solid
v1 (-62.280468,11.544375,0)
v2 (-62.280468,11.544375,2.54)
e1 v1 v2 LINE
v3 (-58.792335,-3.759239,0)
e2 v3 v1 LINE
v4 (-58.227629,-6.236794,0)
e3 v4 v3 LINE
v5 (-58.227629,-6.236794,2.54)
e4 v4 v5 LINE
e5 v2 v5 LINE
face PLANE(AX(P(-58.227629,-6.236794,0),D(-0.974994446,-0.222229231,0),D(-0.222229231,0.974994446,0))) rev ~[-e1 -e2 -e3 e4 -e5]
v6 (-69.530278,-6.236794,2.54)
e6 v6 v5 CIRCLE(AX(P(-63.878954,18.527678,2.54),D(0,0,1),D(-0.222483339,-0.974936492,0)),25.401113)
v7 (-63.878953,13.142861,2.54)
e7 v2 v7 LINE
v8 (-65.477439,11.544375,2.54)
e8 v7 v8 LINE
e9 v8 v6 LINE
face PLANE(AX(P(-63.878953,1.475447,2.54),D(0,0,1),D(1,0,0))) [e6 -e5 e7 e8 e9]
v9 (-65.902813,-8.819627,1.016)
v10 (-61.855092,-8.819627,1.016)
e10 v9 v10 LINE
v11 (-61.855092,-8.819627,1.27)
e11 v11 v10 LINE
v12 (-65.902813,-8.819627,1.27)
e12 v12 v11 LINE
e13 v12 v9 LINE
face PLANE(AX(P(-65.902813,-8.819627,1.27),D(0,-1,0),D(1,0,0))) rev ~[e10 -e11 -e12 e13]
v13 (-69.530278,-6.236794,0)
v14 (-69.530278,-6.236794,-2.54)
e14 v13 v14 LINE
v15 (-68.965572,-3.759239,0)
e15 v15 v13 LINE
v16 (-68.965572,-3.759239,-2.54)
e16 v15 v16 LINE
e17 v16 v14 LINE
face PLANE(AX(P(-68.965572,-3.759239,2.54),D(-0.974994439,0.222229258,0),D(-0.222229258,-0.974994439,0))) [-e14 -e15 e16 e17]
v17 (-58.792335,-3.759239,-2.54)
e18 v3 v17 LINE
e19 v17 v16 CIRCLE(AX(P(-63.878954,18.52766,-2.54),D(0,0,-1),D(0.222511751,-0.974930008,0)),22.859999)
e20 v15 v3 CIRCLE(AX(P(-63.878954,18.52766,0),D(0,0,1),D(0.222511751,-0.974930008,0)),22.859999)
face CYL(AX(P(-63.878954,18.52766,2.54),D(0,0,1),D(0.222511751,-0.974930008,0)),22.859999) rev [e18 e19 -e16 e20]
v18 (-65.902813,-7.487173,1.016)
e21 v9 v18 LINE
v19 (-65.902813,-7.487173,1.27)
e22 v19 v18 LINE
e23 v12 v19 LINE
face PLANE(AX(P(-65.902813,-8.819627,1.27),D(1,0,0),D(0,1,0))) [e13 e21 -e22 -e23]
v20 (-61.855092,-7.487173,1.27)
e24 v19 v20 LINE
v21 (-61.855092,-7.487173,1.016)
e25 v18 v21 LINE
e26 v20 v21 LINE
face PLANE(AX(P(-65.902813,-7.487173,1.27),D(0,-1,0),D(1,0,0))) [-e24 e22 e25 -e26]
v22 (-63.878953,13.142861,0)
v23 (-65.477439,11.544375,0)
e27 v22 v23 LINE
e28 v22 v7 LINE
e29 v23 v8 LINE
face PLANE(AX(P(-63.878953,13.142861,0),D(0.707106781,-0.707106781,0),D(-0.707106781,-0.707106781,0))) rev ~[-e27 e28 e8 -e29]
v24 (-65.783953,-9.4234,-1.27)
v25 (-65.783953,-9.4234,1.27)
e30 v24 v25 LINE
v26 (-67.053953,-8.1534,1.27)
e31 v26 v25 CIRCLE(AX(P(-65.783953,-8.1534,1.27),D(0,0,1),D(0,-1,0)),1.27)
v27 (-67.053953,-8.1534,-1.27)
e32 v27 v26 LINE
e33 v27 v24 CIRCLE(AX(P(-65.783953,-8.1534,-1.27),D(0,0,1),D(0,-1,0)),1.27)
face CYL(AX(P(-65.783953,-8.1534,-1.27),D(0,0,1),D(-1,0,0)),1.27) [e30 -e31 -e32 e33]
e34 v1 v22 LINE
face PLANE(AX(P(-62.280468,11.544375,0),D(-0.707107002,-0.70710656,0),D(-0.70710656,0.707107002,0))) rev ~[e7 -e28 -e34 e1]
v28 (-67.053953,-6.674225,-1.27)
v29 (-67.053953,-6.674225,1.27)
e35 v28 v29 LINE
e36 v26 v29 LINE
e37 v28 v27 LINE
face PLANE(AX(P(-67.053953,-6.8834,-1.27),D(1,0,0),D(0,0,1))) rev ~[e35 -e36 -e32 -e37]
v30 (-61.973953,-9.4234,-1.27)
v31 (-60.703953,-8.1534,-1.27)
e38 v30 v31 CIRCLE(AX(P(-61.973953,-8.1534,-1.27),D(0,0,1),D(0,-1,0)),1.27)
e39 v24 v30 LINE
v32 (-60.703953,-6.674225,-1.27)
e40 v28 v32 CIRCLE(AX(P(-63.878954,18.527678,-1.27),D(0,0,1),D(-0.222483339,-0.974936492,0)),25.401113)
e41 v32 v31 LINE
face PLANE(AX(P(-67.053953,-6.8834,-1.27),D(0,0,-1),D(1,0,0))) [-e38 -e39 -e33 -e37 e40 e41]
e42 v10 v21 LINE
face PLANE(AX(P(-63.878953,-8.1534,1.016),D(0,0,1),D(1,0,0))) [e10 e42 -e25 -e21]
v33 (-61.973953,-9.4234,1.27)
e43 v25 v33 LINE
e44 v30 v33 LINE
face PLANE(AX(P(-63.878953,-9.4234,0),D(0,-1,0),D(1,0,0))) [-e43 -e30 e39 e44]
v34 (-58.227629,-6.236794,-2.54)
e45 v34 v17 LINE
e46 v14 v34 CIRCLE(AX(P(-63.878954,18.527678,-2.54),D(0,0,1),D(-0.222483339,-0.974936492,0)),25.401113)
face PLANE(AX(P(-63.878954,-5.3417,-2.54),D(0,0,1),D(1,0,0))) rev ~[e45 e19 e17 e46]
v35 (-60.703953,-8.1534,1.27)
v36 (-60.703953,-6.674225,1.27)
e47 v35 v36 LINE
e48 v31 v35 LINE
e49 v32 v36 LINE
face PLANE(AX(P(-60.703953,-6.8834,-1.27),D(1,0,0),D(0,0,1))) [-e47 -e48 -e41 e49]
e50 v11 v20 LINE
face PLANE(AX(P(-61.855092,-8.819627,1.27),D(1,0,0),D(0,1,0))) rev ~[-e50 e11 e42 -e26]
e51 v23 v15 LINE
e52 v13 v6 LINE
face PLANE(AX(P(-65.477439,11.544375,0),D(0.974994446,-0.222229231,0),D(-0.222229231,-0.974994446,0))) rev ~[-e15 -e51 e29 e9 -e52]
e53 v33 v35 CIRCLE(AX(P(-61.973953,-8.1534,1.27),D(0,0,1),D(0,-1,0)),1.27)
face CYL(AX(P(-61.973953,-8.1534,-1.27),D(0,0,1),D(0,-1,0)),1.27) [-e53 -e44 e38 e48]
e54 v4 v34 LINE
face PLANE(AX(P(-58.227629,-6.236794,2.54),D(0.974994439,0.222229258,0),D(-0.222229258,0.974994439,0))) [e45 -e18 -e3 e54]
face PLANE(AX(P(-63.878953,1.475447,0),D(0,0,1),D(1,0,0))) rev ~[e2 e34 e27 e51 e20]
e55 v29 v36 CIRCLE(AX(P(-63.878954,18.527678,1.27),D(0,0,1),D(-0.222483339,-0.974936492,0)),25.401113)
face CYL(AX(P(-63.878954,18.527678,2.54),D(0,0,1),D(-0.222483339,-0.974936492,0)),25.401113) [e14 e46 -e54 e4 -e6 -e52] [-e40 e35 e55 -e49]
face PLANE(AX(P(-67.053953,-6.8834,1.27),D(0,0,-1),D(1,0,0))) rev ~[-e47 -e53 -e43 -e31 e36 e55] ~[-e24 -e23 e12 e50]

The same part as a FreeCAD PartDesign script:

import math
import FreeCAD as App
import Part
import Sketcher

V = App.Vector
Q = App.Units.Quantity


def edges_at(feature, points):
    """Names of the edges that pass closest to the given points."""
    edges = feature.Shape.Edges
    near = lambda p: min(range(len(edges)), key=lambda i: edges[i].distToShape(Part.Vertex(*p))[0])
    return sorted({f"Edge{near(p) + 1}" for p in points})


def add_polygon(sketch, points):
    """Adds a closed chain of lines whose ends are joined by coincident constraints."""
    first, n = sketch.GeometryCount, len(points)
    for a, b in zip(points, points[1:] + points[:1]):
        sketch.addGeometry(Part.LineSegment(App.Vector(*a, 0), App.Vector(*b, 0)), False)
    for i in range(n):
        sketch.addConstraint(Sketcher.Constraint("Coincident", first + i, 2, first + (i + 1) % n, 1))

doc = App.newDocument("Part")
body = doc.addObject("PartDesign::Body", "Body")

# Sketch on XY plane
sketch1 = doc.addObject("Sketcher::SketchObject", "Sketch")
body.addObject(sketch1)
sketch1.AttachmentSupport = (doc.XY_Plane, [""])
sketch1.MapMode = "FlatFace"
sketch1.addGeometry(Part.LineSegment(V(-62.280468, 11.544375, 0), V(-63.878953, 13.142861, 0)), False)
sketch1.addGeometry(Part.LineSegment(V(-63.878953, 13.142861, 0), V(-65.477439, 11.544375, 0)), False)
sketch1.addGeometry(Part.LineSegment(V(-65.477439, 11.544375, 0), V(-69.530278, -6.236794, 0)), False)
sketch1.addGeometry(Part.ArcOfCircle(Part.Circle(V(-63.878954, 18.527678, 0), V(0, 0, 1), 25.401113), math.radians(-102.854933), math.radians(-77.145067)), False)
sketch1.addGeometry(Part.LineSegment(V(-58.227629, -6.236794, 0), V(-62.280468, 11.544375, 0)), False)
sketch1.addConstraint(Sketcher.Constraint("Coincident", 0, 2, 1, 1))
sketch1.addConstraint(Sketcher.Constraint("Coincident", 1, 2, 2, 1))
sketch1.addConstraint(Sketcher.Constraint("Coincident", 2, 2, 3, 1))
sketch1.addConstraint(Sketcher.Constraint("Coincident", 3, 2, 4, 1))
sketch1.addConstraint(Sketcher.Constraint("Coincident", 4, 2, 0, 1))
sketch1.addConstraint(Sketcher.Constraint("Perpendicular", 0, 1))
sketch1.addConstraint(Sketcher.Constraint("Horizontal", 2, 2, 3, 2))
sketch1.addConstraint(Sketcher.Constraint("Horizontal", 1, 2, 4, 2))
sketch1.addConstraint(Sketcher.Constraint("Vertical", 3, 3, 0, 2))
sketch1.addConstraint(Sketcher.Constraint("Equal", 0, 1))
sketch1.addConstraint(Sketcher.Constraint("Angle", 2, Q("-102.84 deg")))
sketch1.addConstraint(Sketcher.Constraint("Distance", 0, Q("0.089 in")))
sketch1.addConstraint(Sketcher.Constraint("Distance", 2, Q("0.718 in")))
sketch1.addConstraint(Sketcher.Constraint("Radius", 3, Q("25.401113 mm")))
sketch1.addConstraint(Sketcher.Constraint("DistanceY", -1, 1, 3, 3, Q("18.527678 mm")))
sketch1.addConstraint(Sketcher.Constraint("DistanceX", 1, 2, -1, 1, Q("65.477439 mm")))
pad1 = doc.addObject("PartDesign::Pad", "Pad")
body.addObject(pad1)
pad1.Profile = sketch1
pad1.Length = Q("0.1 in")

# Sketch on XY plane
sketch2 = doc.addObject("Sketcher::SketchObject", "Sketch001")
body.addObject(sketch2)
sketch2.AttachmentSupport = (doc.XY_Plane, [""])
sketch2.MapMode = "FlatFace"
sketch2.AttachmentOffset = App.Placement(V(0, 0, 0.1 * 25.4), App.Rotation())
sketch2.addGeometry(Part.LineSegment(V(-58.227629, -6.236794, 0), V(-58.792335, -3.759239, 0)), False)
sketch2.addGeometry(Part.ArcOfCircle(Part.Circle(V(-63.878954, 18.52766, 0), V(0, 0, 1), 22.859999), math.radians(-102.856603), math.radians(-77.143397)), False)
sketch2.addGeometry(Part.LineSegment(V(-68.965572, -3.759239, 0), V(-69.530278, -6.236794, 0)), False)
sketch2.addGeometry(Part.ArcOfCircle(Part.Circle(V(-63.878954, 18.527678, 0), V(0, 0, 1), 25.401113), math.radians(-102.854933), math.radians(-77.145067)), False)
sketch2.addConstraint(Sketcher.Constraint("Coincident", 0, 2, 1, 2))
sketch2.addConstraint(Sketcher.Constraint("Coincident", 1, 1, 2, 1))
sketch2.addConstraint(Sketcher.Constraint("Coincident", 2, 2, 3, 1))
sketch2.addConstraint(Sketcher.Constraint("Coincident", 3, 2, 0, 1))
sketch2.addConstraint(Sketcher.Constraint("Horizontal", 0, 2, 1, 1))
sketch2.addConstraint(Sketcher.Constraint("Horizontal", 2, 2, 3, 2))
sketch2.addConstraint(Sketcher.Constraint("Vertical", 1, 3, 3, 3))
sketch2.addConstraint(Sketcher.Constraint("Radius", 1, Q("0.9 in")))
sketch2.addConstraint(Sketcher.Constraint("Angle", 0, Q("102.840002 deg")))
sketch2.addConstraint(Sketcher.Constraint("Radius", 3, Q("25.401113 mm")))
sketch2.addConstraint(Sketcher.Constraint("DistanceY", 0, 2, 1, 3, Q("22.286899 mm")))
sketch2.addConstraint(Sketcher.Constraint("DistanceY", -1, 1, 1, 3, Q("18.52766 mm")))
sketch2.addConstraint(Sketcher.Constraint("DistanceY", -1, 1, 3, 3, Q("18.527678 mm")))
sketch2.addConstraint(Sketcher.Constraint("DistanceX", 1, 1, -1, 1, Q("68.965572 mm")))
pad2 = doc.addObject("PartDesign::Pad", "Pad001")
body.addObject(pad2)
pad2.Profile = sketch2
pad2.Length = Q("0.2 in")
pad2.Reversed = True

# Sketch on XZ plane
sketch3 = doc.addObject("Sketcher::SketchObject", "Sketch002")
body.addObject(sketch3)
sketch3.AttachmentSupport = (doc.XZ_Plane, [""])
sketch3.MapMode = "FlatFace"
sketch3.AttachmentOffset = App.Placement(V(0, 0, 0.271 * 25.4), App.Rotation())
add_polygon(sketch3, [(-67.053953, 1.27), (-67.053953, -1.27), (-60.703953, -1.27), (-60.703953, 1.27)])  # lines 0-3
sketch3.addConstraint(Sketcher.Constraint("Vertical", 0))
sketch3.addConstraint(Sketcher.Constraint("Horizontal", 1))
sketch3.addConstraint(Sketcher.Constraint("Vertical", 2))
sketch3.addConstraint(Sketcher.Constraint("Horizontal", 3))
sketch3.addConstraint(Sketcher.Constraint("DistanceY", 0, 2, 0, 1, Q("0.1 in")))
sketch3.addConstraint(Sketcher.Constraint("DistanceX", 1, 1, 1, 2, Q("0.25 in")))
sketch3.addConstraint(Sketcher.Constraint("DistanceY", 0, 2, -1, 1, Q("0.05 in")))
sketch3.addConstraint(Sketcher.Constraint("DistanceX", 0, 2, -1, 1, Q("67.053953 mm")))
pad3 = doc.addObject("PartDesign::Pad", "Pad002")
body.addObject(pad3)
pad3.Profile = sketch3
pad3.Type = "TwoLengths"
pad3.Length = Q("0.1 in")
pad3.Length2 = Q("0.09 in")

# Sketch on XY plane
sketch4 = doc.addObject("Sketcher::SketchObject", "Sketch003")
body.addObject(sketch4)
sketch4.AttachmentSupport = (doc.XY_Plane, [""])
sketch4.MapMode = "FlatFace"
sketch4.AttachmentOffset = App.Placement(V(0, 0, 0.05 * 25.4), App.Rotation())
add_polygon(sketch4, [(-65.902813, -7.487173), (-65.902813, -8.819627), (-61.855092, -8.819627), (-61.855092, -7.487173)])  # lines 0-3
sketch4.addConstraint(Sketcher.Constraint("Vertical", 0))
sketch4.addConstraint(Sketcher.Constraint("Horizontal", 1))
sketch4.addConstraint(Sketcher.Constraint("Vertical", 2))
sketch4.addConstraint(Sketcher.Constraint("Horizontal", 3))
sketch4.addConstraint(Sketcher.Constraint("DistanceX", 1, 1, 1, 2, Q("4.047721 mm")))
sketch4.addConstraint(Sketcher.Constraint("DistanceY", 0, 2, 0, 1, Q("1.332454 mm")))
sketch4.addConstraint(Sketcher.Constraint("DistanceX", 0, 2, -1, 1, Q("65.902813 mm")))
sketch4.addConstraint(Sketcher.Constraint("DistanceY", 0, 2, -1, 1, Q("8.819627 mm")))
pocket1 = doc.addObject("PartDesign::Pocket", "Pocket")
body.addObject(pocket1)
pocket1.Profile = sketch4
pocket1.Length = Q("0.01 in")
doc.recompute()

fillet = doc.addObject("PartDesign::Fillet", "Fillet")
body.addObject(fillet)
fillet.Base = (pocket1, edges_at(pocket1, [(-67.054, -9.423, 0), (-60.704, -9.423, 0)]))
fillet.Radius = Q("0.05 in")

doc.recompute()
